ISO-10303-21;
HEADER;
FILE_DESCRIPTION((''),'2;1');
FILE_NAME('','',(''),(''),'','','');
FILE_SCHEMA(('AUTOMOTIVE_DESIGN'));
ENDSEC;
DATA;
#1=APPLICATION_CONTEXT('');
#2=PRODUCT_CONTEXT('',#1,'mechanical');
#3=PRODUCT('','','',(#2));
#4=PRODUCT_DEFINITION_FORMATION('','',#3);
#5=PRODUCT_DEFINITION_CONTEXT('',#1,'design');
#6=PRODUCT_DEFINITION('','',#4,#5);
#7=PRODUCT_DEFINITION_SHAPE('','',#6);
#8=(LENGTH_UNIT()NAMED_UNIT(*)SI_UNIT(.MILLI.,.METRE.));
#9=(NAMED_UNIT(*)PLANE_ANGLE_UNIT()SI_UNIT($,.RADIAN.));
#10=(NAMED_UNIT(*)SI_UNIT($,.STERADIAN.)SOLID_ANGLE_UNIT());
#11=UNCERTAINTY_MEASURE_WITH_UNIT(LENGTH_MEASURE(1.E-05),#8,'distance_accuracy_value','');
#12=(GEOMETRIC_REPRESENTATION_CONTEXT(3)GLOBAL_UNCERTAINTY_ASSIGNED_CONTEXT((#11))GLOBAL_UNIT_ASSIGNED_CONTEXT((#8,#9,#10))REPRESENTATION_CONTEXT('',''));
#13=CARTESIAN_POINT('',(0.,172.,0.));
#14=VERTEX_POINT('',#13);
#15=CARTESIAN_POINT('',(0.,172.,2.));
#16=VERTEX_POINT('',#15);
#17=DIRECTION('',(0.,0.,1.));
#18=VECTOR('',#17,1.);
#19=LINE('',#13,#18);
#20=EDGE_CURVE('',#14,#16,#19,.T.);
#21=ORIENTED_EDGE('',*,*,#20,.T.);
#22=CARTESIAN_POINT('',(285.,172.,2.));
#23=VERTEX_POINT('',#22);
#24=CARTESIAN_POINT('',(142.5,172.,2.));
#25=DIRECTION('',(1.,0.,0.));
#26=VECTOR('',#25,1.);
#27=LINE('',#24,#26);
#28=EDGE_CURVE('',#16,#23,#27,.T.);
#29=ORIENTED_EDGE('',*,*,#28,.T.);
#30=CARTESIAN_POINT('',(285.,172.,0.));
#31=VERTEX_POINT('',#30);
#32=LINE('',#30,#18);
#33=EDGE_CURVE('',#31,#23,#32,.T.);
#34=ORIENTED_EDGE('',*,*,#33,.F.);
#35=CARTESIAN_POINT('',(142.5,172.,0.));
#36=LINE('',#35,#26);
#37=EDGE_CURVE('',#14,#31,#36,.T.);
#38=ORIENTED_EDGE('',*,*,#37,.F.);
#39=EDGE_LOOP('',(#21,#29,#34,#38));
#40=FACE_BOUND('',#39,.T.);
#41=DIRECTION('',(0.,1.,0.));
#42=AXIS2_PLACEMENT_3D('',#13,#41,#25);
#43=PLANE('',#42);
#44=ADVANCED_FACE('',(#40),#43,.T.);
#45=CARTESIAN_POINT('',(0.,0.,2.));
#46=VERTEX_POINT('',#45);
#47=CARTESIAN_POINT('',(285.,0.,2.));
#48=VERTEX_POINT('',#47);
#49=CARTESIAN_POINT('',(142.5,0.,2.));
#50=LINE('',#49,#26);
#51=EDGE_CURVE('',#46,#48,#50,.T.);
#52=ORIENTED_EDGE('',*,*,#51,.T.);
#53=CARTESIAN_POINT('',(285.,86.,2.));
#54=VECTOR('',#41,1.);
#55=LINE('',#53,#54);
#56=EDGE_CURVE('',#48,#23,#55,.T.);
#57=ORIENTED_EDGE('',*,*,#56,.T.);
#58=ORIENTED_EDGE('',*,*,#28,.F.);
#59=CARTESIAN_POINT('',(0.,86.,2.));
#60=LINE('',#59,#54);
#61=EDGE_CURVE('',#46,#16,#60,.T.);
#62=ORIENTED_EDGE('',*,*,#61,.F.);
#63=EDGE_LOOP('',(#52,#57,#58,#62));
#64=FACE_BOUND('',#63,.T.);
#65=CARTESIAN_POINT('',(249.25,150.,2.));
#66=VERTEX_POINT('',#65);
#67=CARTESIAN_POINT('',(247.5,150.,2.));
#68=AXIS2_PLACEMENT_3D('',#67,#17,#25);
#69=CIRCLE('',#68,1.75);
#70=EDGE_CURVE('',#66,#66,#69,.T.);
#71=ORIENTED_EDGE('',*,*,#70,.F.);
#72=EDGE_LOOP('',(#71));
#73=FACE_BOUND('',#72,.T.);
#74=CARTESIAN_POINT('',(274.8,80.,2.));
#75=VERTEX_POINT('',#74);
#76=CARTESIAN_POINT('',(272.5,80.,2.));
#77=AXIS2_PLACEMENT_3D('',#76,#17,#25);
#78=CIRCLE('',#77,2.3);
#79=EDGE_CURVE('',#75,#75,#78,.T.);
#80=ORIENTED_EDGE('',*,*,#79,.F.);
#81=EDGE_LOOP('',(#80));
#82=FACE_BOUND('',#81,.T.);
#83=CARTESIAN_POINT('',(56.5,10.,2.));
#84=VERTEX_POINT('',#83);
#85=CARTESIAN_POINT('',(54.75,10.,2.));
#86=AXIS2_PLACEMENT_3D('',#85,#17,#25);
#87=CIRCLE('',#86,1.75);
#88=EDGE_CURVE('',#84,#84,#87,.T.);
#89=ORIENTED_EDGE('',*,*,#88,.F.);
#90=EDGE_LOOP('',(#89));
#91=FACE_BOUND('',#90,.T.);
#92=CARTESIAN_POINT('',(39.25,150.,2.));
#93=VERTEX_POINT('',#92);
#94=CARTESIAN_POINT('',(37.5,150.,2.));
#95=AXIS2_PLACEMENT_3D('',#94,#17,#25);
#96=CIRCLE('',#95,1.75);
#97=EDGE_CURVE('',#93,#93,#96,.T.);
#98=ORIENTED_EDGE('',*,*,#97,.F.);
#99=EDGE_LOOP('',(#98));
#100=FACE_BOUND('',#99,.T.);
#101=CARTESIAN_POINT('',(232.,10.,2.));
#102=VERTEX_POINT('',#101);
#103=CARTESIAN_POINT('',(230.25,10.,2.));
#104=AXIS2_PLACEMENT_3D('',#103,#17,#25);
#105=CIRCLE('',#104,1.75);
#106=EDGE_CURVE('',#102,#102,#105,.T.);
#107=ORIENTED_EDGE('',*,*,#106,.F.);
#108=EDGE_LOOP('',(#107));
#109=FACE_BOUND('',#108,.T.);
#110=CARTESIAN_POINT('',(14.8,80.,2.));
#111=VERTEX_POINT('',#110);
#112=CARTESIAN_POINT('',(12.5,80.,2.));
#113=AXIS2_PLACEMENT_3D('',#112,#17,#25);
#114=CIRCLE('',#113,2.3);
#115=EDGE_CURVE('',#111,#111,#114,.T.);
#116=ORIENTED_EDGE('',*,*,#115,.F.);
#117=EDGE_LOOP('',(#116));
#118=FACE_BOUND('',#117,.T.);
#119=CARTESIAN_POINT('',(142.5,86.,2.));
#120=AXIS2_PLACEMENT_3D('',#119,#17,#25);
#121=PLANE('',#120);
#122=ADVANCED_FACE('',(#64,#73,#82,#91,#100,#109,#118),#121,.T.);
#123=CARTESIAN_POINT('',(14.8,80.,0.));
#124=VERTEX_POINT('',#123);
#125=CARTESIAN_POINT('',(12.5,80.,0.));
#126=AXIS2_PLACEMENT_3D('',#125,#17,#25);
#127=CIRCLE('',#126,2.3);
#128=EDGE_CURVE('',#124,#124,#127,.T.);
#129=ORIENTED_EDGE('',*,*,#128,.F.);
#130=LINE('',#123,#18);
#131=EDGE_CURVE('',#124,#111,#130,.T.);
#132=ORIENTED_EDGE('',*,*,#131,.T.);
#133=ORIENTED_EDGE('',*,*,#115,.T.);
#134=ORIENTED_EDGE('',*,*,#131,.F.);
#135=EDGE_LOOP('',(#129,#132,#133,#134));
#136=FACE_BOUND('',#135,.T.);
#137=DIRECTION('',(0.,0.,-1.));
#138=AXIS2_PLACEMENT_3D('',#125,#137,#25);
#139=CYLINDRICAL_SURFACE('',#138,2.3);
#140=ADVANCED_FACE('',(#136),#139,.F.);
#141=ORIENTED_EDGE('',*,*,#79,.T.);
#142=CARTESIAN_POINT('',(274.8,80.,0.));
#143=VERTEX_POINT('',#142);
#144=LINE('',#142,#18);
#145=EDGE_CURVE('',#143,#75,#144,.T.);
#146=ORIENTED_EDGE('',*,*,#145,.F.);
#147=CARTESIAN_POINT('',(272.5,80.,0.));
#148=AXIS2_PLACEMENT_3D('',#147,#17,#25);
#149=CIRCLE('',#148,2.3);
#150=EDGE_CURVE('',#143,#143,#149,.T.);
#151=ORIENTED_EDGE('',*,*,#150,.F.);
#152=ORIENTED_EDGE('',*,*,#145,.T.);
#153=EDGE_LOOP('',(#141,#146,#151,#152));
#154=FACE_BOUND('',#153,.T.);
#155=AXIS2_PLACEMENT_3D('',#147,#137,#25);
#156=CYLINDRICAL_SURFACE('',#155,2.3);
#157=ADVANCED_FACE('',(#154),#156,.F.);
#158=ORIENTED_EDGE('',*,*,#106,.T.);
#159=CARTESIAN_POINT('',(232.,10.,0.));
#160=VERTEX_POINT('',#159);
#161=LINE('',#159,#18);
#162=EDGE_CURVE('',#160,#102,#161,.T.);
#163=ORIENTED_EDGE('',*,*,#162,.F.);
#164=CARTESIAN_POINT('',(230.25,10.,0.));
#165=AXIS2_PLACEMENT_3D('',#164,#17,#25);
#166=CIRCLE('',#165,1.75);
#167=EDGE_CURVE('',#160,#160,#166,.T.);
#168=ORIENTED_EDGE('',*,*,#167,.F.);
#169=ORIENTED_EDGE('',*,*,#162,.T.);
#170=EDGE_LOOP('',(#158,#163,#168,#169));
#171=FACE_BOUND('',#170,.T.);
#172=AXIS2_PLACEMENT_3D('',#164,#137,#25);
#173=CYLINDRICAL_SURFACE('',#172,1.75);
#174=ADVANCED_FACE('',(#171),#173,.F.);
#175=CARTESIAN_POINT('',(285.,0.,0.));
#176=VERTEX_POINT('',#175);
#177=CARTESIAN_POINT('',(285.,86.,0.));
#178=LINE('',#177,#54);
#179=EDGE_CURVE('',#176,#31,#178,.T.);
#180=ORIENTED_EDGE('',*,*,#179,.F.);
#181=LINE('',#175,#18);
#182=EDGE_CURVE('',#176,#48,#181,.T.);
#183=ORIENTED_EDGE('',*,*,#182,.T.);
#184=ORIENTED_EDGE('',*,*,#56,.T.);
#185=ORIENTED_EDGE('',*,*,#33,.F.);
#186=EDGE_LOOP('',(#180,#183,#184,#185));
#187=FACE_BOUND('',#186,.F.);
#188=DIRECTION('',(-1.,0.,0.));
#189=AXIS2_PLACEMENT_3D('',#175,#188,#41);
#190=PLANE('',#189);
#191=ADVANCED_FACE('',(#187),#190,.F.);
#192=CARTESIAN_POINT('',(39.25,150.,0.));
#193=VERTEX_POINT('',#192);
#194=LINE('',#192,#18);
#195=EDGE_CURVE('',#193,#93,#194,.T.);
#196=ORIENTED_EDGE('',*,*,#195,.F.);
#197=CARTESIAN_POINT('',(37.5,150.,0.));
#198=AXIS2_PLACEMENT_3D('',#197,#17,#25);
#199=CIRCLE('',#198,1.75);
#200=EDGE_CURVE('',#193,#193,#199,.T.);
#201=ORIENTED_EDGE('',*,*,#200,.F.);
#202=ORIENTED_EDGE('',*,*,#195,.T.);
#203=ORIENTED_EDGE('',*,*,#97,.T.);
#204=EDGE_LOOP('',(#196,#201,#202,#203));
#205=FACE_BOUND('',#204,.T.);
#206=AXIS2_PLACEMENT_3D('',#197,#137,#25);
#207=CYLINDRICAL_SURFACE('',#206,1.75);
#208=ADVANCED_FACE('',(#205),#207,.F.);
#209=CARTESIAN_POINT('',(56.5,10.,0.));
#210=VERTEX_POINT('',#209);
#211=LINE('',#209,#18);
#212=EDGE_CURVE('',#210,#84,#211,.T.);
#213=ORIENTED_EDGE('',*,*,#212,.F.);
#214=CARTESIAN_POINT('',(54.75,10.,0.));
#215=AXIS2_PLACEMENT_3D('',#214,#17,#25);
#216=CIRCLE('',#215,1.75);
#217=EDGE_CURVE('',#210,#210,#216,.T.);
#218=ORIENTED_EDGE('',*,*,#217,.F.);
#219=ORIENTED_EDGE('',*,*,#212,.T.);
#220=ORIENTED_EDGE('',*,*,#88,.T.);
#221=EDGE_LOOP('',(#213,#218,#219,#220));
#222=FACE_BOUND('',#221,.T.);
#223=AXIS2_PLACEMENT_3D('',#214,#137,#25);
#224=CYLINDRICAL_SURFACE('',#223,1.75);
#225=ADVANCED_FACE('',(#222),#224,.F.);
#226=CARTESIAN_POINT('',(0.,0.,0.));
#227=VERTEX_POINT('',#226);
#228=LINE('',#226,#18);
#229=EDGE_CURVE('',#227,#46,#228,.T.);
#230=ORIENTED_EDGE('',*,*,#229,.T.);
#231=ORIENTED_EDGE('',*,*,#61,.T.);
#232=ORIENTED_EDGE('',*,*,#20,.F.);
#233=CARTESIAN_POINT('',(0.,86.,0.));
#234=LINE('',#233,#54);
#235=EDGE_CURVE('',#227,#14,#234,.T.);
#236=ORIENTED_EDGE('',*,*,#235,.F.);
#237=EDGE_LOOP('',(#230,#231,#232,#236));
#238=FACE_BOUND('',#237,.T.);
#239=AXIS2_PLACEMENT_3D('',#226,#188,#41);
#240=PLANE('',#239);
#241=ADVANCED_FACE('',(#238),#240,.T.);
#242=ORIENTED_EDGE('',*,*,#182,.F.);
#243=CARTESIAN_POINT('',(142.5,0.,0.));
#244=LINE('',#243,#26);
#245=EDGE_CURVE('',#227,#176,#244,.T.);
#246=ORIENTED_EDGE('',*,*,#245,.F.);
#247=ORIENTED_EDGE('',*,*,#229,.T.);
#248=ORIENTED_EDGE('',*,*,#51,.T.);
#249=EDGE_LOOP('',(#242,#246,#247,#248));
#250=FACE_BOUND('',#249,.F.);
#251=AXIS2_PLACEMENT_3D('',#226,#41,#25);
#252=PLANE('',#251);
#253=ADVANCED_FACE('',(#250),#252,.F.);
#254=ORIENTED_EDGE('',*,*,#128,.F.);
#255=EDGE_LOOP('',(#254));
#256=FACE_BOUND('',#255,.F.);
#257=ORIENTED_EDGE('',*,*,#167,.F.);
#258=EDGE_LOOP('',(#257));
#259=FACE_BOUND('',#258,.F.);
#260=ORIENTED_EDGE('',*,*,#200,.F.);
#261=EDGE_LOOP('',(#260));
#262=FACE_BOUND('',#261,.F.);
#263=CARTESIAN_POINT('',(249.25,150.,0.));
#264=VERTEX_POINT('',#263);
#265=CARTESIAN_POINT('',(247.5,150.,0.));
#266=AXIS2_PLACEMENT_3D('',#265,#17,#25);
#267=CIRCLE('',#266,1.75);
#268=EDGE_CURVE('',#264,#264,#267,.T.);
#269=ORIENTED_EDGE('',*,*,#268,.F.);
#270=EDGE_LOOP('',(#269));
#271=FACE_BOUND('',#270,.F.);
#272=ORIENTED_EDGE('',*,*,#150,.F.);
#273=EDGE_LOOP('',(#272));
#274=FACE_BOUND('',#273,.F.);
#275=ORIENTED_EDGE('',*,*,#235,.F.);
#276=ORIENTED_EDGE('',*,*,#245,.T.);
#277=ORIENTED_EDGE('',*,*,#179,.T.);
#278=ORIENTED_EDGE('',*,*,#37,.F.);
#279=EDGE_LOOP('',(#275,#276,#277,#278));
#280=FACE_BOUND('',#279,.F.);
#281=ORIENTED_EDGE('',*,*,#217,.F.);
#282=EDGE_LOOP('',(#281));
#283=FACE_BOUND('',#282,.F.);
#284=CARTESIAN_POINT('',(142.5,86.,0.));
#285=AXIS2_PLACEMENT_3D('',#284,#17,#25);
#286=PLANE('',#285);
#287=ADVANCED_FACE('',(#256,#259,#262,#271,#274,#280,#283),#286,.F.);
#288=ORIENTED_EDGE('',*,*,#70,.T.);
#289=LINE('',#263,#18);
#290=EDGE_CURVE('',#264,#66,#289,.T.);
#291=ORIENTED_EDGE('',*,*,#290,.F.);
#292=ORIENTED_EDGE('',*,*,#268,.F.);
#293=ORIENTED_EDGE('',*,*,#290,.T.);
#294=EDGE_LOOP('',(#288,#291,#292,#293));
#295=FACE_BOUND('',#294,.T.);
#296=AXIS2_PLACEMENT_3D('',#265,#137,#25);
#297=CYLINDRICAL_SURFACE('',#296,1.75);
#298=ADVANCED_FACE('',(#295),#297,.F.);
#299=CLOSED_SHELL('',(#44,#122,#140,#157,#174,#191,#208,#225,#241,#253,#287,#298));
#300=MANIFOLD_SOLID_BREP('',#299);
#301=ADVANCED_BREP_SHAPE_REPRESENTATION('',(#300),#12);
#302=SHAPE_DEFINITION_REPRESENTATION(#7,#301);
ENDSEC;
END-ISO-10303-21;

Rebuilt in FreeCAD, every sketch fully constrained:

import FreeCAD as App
import Part
import Sketcher
from FreeCAD import Vector

doc = App.newDocument("Part")
body = doc.addObject("PartDesign::Body", "Body")

# Sketch on XY plane
sketch1 = body.newObject("Sketcher::SketchObject", "Sketch")
sketch1.AttachmentSupport = (doc.getObject("XY_Plane"), [""])
sketch1.MapMode = "FlatFace"
sketch1.addGeometry([
    Part.LineSegment(Vector(0, 172, 0), Vector(0, 0, 0)),  # 0
    Part.LineSegment(Vector(0, 0, 0), Vector(285, 0, 0)),  # 1
    Part.LineSegment(Vector(285, 0, 0), Vector(285, 172, 0)),  # 2
    Part.LineSegment(Vector(285, 172, 0), Vector(0, 172, 0)),  # 3
    Part.Circle(Vector(54.75, 10, 0), Vector(0, 0, 1), 1.75),  # 4
    Part.Circle(Vector(230.25, 10, 0), Vector(0, 0, 1), 1.75),  # 5
    Part.Circle(Vector(12.5, 80, 0), Vector(0, 0, 1), 2.3),  # 6
    Part.Circle(Vector(37.5, 150, 0), Vector(0, 0, 1), 1.75),  # 7
    Part.Circle(Vector(272.5, 80, 0), Vector(0, 0, 1), 2.3),  # 8
    Part.Circle(Vector(247.5, 150, 0), Vector(0, 0, 1), 1.75),  # 9
], False)
sketch1.addConstraint([
    Sketcher.Constraint("Coincident", 0, 2, 1, 1),
    Sketcher.Constraint("Coincident", 1, 2, 2, 1),
    Sketcher.Constraint("Coincident", 2, 2, 3, 1),
    Sketcher.Constraint("Coincident", 3, 2, 0, 1),
    Sketcher.Constraint("Vertical", 0),
    Sketcher.Constraint("Horizontal", 1),
    Sketcher.Constraint("Vertical", 2),
    Sketcher.Constraint("Horizontal", 3),
    Sketcher.Constraint("Coincident", 0, 2, -1, 1),
    Sketcher.Constraint("Equal", 4, 5),
    Sketcher.Constraint("Equal", 5, 7),
    Sketcher.Constraint("Equal", 6, 8),
    Sketcher.Constraint("Equal", 7, 9),
    Sketcher.Constraint("Horizontal", 4, 3, 5, 3),
    Sketcher.Constraint("Horizontal", 6, 3, 8, 3),
    Sketcher.Constraint("Horizontal", 7, 3, 9, 3),
    Sketcher.Constraint("Diameter", 4, 3.5),
    Sketcher.Constraint("Diameter", 6, 4.6),
    Sketcher.Constraint("DistanceX", 1, 1, 1, 2, 285.0),
    Sketcher.Constraint("DistanceY", 0, 2, 0, 1, 172.0),
    Sketcher.Constraint("DistanceY", -1, 1, 4, 3, 10.0),
    Sketcher.Constraint("DistanceY", -1, 1, 6, 3, 80.0),
    Sketcher.Constraint("DistanceY", -1, 1, 7, 3, 150.0),
    Sketcher.Constraint("DistanceX", 6, 3, 7, 3, 25.0),
    Sketcher.Constraint("DistanceX", 7, 3, 8, 3, 235.0),
    Sketcher.Constraint("DistanceX", 9, 3, 8, 3, 25.0),
    Sketcher.Constraint("DistanceX", -1, 1, 6, 3, 12.5),
    Sketcher.Constraint("DistanceX", 4, 3, 5, 3, 175.5),
    Sketcher.Constraint("DistanceX", -1, 1, 4, 3, 54.75),
])
pad1 = body.newObject("PartDesign::Pad", "Pad")
pad1.Profile = sketch1
pad1.Length = 2

doc.recompute()
